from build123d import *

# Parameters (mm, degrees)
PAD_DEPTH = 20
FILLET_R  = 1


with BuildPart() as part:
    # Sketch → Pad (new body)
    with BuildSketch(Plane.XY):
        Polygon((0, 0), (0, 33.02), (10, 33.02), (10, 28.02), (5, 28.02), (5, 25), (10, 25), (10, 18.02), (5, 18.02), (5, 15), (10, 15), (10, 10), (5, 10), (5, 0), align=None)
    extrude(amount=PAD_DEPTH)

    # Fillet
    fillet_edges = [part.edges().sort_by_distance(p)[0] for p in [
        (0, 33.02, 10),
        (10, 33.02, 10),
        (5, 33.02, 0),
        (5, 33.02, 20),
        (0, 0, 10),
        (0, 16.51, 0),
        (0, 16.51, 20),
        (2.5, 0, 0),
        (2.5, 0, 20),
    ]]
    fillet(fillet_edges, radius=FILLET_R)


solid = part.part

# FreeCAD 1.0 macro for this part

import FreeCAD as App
import Part
import Sketcher

V = App.Vector


def edges_at(feature, points):
    """Names of the edges that pass closest to the given points."""
    edges = feature.Shape.Edges
    near = lambda p: min(range(len(edges)), key=lambda i: edges[i].distToShape(Part.Vertex(*p))[0])
    return sorted({f"Edge{near(p) + 1}" for p in points})

doc = App.newDocument("Part")
params = doc.addObject("Spreadsheet::Sheet", "Params")
for row, (alias, value) in enumerate([
    ("sketch1_width", "5 mm"),
    ("sketch1_height", "33.02 mm"),
    ("pad1_length", "20 mm"),
    ("fillet_radius", "1 mm"),
], start=1):
    params.set(f"A{row}", alias)
    params.set(f"B{row}", "=" + value)
    params.setAlias(f"B{row}", alias)

body = doc.addObject("PartDesign::Body", "Body")

sketch1 = doc.addObject("Sketcher::SketchObject", "Sketch")
body.addObject(sketch1)
sketch1.AttachmentSupport = (doc.XY_Plane, [""])
sketch1.MapMode = "FlatFace"
sketch1.addGeometry(Part.LineSegment(V(0, 33, 0), V(0, 0, 0)), False)
sketch1.addGeometry(Part.LineSegment(V(0, 0, 0), V(5, 0, 0)), False)
sketch1.addGeometry(Part.LineSegment(V(5, 0, 0), V(5, 10, 0)), False)
sketch1.addGeometry(Part.LineSegment(V(5, 10, 0), V(10, 10, 0)), False)
sketch1.addGeometry(Part.LineSegment(V(10, 10, 0), V(10, 15, 0)), False)
sketch1.addGeometry(Part.LineSegment(V(10, 15, 0), V(5, 15, 0)), False)
sketch1.addGeometry(Part.LineSegment(V(5, 15, 0), V(5, 18, 0)), False)
sketch1.addGeometry(Part.LineSegment(V(5, 18, 0), V(10, 18, 0)), False)
sketch1.addGeometry(Part.LineSegment(V(10, 18, 0), V(10, 25, 0)), False)
sketch1.addGeometry(Part.LineSegment(V(10, 25, 0), V(5, 25, 0)), False)
sketch1.addGeometry(Part.LineSegment(V(5, 25, 0), V(5, 28, 0)), False)
sketch1.addGeometry(Part.LineSegment(V(5, 28, 0), V(10, 28, 0)), False)
sketch1.addGeometry(Part.LineSegment(V(10, 28, 0), V(10, 33, 0)), False)
sketch1.addGeometry(Part.LineSegment(V(10, 33, 0), V(0, 33, 0)), False)
sketch1.addConstraint(Sketcher.Constraint("Coincident", 0, 2, 1, 1))
sketch1.addConstraint(Sketcher.Constraint("Coincident", 1, 2, 2, 1))
sketch1.addConstraint(Sketcher.Constraint("Coincident", 2, 2, 3, 1))
sketch1.addConstraint(Sketcher.Constraint("Coincident", 3, 2, 4, 1))
sketch1.addConstraint(Sketcher.Constraint("Coincident", 4, 2, 5, 1))
sketch1.addConstraint(Sketcher.Constraint("Coincident", 5, 2, 6, 1))
sketch1.addConstraint(Sketcher.Constraint("Coincident", 6, 2, 7, 1))
sketch1.addConstraint(Sketcher.Constraint("Coincident", 7, 2, 8, 1))
sketch1.addConstraint(Sketcher.Constraint("Coincident", 8, 2, 9, 1))
sketch1.addConstraint(Sketcher.Constraint("Coincident", 9, 2, 10, 1))
sketch1.addConstraint(Sketcher.Constraint("Coincident", 10, 2, 11, 1))
sketch1.addConstraint(Sketcher.Constraint("Coincident", 11, 2, 12, 1))
sketch1.addConstraint(Sketcher.Constraint("Coincident", 12, 2, 13, 1))
sketch1.addConstraint(Sketcher.Constraint("Coincident", 13, 2, 0, 1))
sketch1.addConstraint(Sketcher.Constraint("Vertical", 0))
sketch1.addConstraint(Sketcher.Constraint("Horizontal", 1))
sketch1.addConstraint(Sketcher.Constraint("Vertical", 2))
sketch1.addConstraint(Sketcher.Constraint("Horizontal", 3))
sketch1.addConstraint(Sketcher.Constraint("Vertical", 4))
sketch1.addConstraint(Sketcher.Constraint("Horizontal", 5))
sketch1.addConstraint(Sketcher.Constraint("Vertical", 6))
sketch1.addConstraint(Sketcher.Constraint("Horizontal", 7))
sketch1.addConstraint(Sketcher.Constraint("Vertical", 8))
sketch1.addConstraint(Sketcher.Constraint("Horizontal", 9))
sketch1.addConstraint(Sketcher.Constraint("Vertical", 10))
sketch1.addConstraint(Sketcher.Constraint("Horizontal", 11))
sketch1.addConstraint(Sketcher.Constraint("Vertical", 12))
sketch1.addConstraint(Sketcher.Constraint("Horizontal", 13))
sketch1.addConstraint(Sketcher.Constraint("Coincident", 0, 2, -1, 1))
sketch1.addConstraint(Sketcher.Constraint("Vertical", 2, 2, 5, 2))
sketch1.addConstraint(Sketcher.Constraint("Vertical", 4, 2, 7, 2))
sketch1.addConstraint(Sketcher.Constraint("Vertical", 6, 2, 9, 2))
sketch1.addConstraint(Sketcher.Constraint("Vertical", 8, 2, 11, 2))
sketch1.addConstraint(Sketcher.Constraint("Equal", 1, 3))
sketch1.addConstraint(Sketcher.Constraint("Equal", 13, 2))
sketch1.addConstraint(Sketcher.Constraint("Equal", 11, 4))
sketch1.addConstraint(Sketcher.Constraint("Equal", 6, 10))
sketch1.addConstraint(Sketcher.Constraint("Equal", 4, 12))
sketch1.addConstraint(Sketcher.Constraint("DistanceX", 1, 1, 1, 2, 5.0))
sketch1.addConstraint(Sketcher.Constraint("DistanceY", -1, 1, 8, 2, 25.0))
sketch1.addConstraint(Sketcher.Constraint("DistanceY", 0, 2, 0, 1, 33.02))
sketch1.setExpression("Constraints[38]", "Params.sketch1_width")
sketch1.setExpression("Constraints[40]", "Params.sketch1_height")
pad1 = doc.addObject("PartDesign::Pad", "Pad")
body.addObject(pad1)
pad1.Profile = sketch1
pad1.setExpression("Length", "Params.pad1_length")
doc.recompute()

fillet = doc.addObject("PartDesign::Fillet", "Fillet")
body.addObject(fillet)
fillet.Base = (pad1, edges_at(pad1, [
    (0, 33.02, 10),
    (10, 33.02, 10),
    (5, 33.02, 0),
    (5, 33.02, 20),
    (0, 0, 10),
    (0, 16.51, 0),
    (0, 16.51, 20),
    (2.5, 0, 0),
    (2.5, 0, 20),
]))
fillet.setExpression("Radius", "Params.fillet_radius")

doc.recompute()
